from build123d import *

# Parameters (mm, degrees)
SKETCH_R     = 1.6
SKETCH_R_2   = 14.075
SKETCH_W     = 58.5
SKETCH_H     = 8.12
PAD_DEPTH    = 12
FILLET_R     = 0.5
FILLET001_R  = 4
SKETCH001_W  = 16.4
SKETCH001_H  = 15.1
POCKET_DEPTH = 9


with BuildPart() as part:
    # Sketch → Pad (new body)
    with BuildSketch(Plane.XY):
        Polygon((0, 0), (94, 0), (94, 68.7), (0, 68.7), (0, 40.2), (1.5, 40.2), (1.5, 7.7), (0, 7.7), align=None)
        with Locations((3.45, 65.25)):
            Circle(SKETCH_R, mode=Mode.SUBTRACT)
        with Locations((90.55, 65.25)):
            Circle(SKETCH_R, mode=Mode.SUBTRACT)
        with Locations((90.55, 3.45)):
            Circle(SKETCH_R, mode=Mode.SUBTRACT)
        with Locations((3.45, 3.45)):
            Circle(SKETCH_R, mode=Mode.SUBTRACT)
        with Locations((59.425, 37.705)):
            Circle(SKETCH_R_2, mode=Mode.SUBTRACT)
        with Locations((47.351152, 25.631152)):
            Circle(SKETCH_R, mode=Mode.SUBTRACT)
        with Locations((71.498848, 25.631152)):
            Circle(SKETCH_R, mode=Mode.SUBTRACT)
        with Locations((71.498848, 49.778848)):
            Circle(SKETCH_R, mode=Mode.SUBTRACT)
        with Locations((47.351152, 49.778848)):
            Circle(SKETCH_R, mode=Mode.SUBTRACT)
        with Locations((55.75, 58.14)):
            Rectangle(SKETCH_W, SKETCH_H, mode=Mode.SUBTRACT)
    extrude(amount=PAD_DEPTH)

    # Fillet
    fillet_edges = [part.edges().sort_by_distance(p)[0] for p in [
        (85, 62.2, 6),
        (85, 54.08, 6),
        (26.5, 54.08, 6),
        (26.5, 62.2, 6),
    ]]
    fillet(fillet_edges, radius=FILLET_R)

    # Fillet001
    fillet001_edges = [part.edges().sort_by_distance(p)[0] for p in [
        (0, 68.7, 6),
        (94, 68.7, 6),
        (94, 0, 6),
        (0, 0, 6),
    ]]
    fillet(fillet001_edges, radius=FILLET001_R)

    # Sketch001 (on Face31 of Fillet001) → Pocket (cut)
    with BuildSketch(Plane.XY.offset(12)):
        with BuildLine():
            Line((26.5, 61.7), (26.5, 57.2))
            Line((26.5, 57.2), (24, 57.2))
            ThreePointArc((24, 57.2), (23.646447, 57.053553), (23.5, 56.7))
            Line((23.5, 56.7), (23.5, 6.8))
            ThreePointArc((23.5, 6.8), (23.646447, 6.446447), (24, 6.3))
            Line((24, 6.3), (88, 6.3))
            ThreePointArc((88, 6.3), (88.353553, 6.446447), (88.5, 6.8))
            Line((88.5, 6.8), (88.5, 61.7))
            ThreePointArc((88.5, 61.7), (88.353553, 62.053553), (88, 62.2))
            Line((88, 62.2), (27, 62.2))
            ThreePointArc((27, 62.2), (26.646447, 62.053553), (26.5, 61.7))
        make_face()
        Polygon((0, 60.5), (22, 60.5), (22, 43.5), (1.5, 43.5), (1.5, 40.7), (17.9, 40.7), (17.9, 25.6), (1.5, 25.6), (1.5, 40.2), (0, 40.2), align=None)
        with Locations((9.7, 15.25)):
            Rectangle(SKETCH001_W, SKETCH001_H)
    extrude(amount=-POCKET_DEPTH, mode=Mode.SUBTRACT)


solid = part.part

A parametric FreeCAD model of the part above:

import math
import FreeCAD as App
import Part
import Sketcher

V = App.Vector


def edges_at(feature, points):
    """Names of the edges that pass closest to the given points."""
    edges = feature.Shape.Edges
    near = lambda p: min(range(len(edges)), key=lambda i: edges[i].distToShape(Part.Vertex(*p))[0])
    return sorted({f"Edge{near(p) + 1}" for p in points})

doc = App.newDocument("Part")
params = doc.addObject("Spreadsheet::Sheet", "Params")
for row, (alias, value) in enumerate([
    ("sketch1_diameter", "3.2 mm"),
    ("sketch1_diameter2", "28.15 mm"),
    ("sketch1_width", "94 mm"),
    ("sketch1_width2", "1.5 mm"),
    ("sketch1_width3", "58.5 mm"),
    ("pad1_length", "12 mm"),
    ("fillet_radius", "0.5 mm"),
    ("fillet2_radius", "4 mm"),
    ("sketch2_radius", "0.500001 mm"),
    ("sketch2_width", "64 mm"),
    ("sketch2_width2", "61 mm"),
    ("sketch2_width3", "22 mm"),
    ("sketch2_height", "17 mm"),
    ("pocket1_length", "9 mm"),
], start=1):
    params.set(f"A{row}", alias)
    params.set(f"B{row}", "=" + value)
    params.setAlias(f"B{row}", alias)

body = doc.addObject("PartDesign::Body", "Body")

sketch1 = body.newObject("Sketcher::SketchObject", "Sketch")
sketch1.AttachmentSupport = (doc.getObject("XY_Plane"), [""])
sketch1.MapMode = "FlatFace"
sketch1.addGeometry([
    Part.LineSegment(V(0, 0, 0), V(94, 0, 0)),
    Part.LineSegment(V(94, 0, 0), V(94, 68.7, 0)),
    Part.LineSegment(V(94, 68.7, 0), V(0, 68.7, 0)),
    Part.LineSegment(V(0, 68.7, 0), V(0, 40.2, 0)),
    Part.LineSegment(V(0, 40.2, 0), V(1.5, 40.2, 0)),
    Part.LineSegment(V(1.5, 40.2, 0), V(1.5, 7.7, 0)),
    Part.LineSegment(V(1.5, 7.7, 0), V(0, 7.7, 0)),
    Part.LineSegment(V(0, 7.7, 0), V(0, 0, 0)),
    Part.Circle(V(3.5, 3.5, 0), V(0, 0, 1), 1.6),
    Part.Circle(V(90.5, 3.5, 0), V(0, 0, 1), 1.6),
    Part.Circle(V(47.4, 25.6, 0), V(0, 0, 1), 1.6),
    Part.Circle(V(71.5, 25.6, 0), V(0, 0, 1), 1.6),
    Part.Circle(V(3.5, 65.2, 0), V(0, 0, 1), 1.6),
    Part.Circle(V(59.4, 37.7, 0), V(0, 0, 1), 14.1),
    Part.Circle(V(47.4, 49.8, 0), V(0, 0, 1), 1.6),
    Part.Circle(V(71.5, 49.8, 0), V(0, 0, 1), 1.6),
    Part.LineSegment(V(85, 54.1, 0), V(26.5, 54.1, 0)),
    Part.LineSegment(V(26.5, 54.1, 0), V(26.5, 62.2, 0)),
    Part.LineSegment(V(26.5, 62.2, 0), V(85, 62.2, 0)),
    Part.LineSegment(V(85, 62.2, 0), V(85, 54.1, 0)),
    Part.Circle(V(90.5, 65.2, 0), V(0, 0, 1), 1.6),
], False)
sketch1.addConstraint([
    Sketcher.Constraint("Coincident", 0, 2, 1, 1),
    Sketcher.Constraint("Coincident", 1, 2, 2, 1),
    Sketcher.Constraint("Coincident", 2, 2, 3, 1),
    Sketcher.Constraint("Coincident", 3, 2, 4, 1),
    Sketcher.Constraint("Coincident", 4, 2, 5, 1),
    Sketcher.Constraint("Coincident", 5, 2, 6, 1),
    Sketcher.Constraint("Coincident", 6, 2, 7, 1),
    Sketcher.Constraint("Coincident", 7, 2, 0, 1),
    Sketcher.Constraint("Coincident", 16, 2, 17, 1),
    Sketcher.Constraint("Coincident", 17, 2, 18, 1),
    Sketcher.Constraint("Coincident", 18, 2, 19, 1),
    Sketcher.Constraint("Coincident", 19, 2, 16, 1),
    Sketcher.Constraint("Horizontal", 0),
    Sketcher.Constraint("Vertical", 1),
    Sketcher.Constraint("Horizontal", 2),
    Sketcher.Constraint("Vertical", 3),
    Sketcher.Constraint("Horizontal", 4),
    Sketcher.Constraint("Vertical", 5),
    Sketcher.Constraint("Horizontal", 6),
    Sketcher.Constraint("Vertical", 7),
    Sketcher.Constraint("Horizontal", 16),
    Sketcher.Constraint("Vertical", 17),
    Sketcher.Constraint("Horizontal", 18),
    Sketcher.Constraint("Vertical", 19),
    Sketcher.Constraint("Coincident", 7, 2, -1, 1),
    Sketcher.Constraint("Equal", 8, 9),
    Sketcher.Constraint("Equal", 9, 10),
    Sketcher.Constraint("Equal", 10, 11),
    Sketcher.Constraint("Equal", 11, 12),
    Sketcher.Constraint("Equal", 12, 14),
    Sketcher.Constraint("Equal", 14, 15),
    Sketcher.Constraint("Equal", 15, 20),
    Sketcher.Constraint("PointOnObject", 2, 2, -2),
    Sketcher.Constraint("Horizontal", 8, 3, 9, 3),
    Sketcher.Constraint("Horizontal", 10, 3, 11, 3),
    Sketcher.Constraint("Horizontal", 14, 3, 15, 3),
    Sketcher.Constraint("Horizontal", 12, 3, 20, 3),
    Sketcher.Constraint("Vertical", 8, 3, 12, 3),
    Sketcher.Constraint("Vertical", 10, 3, 14, 3),
    Sketcher.Constraint("Vertical", 11, 3, 15, 3),
    Sketcher.Constraint("Vertical", 9, 3, 20, 3),
    Sketcher.Constraint("Diameter", 8, 3.2),
    Sketcher.Constraint("Diameter", 13, 28.15),
    Sketcher.Constraint("DistanceX", 0, 1, 0, 2, 94.0),
    Sketcher.Constraint("DistanceX", 4, 1, 4, 2, 1.5),
    Sketcher.Constraint("DistanceX", 16, 2, 16, 1, 58.5),
    Sketcher.Constraint("DistanceY", 1, 1, 1, 2, 68.7),
    Sketcher.Constraint("DistanceY", 3, 2, 3, 1, 28.5),
    Sketcher.Constraint("DistanceY", 5, 2, 5, 1, 32.5),
    Sketcher.Constraint("DistanceX", -1, 1, 18, 2, 85.0),
    Sketcher.Constraint("DistanceY", 4, 2, 17, 2, 22.0),
    Sketcher.Constraint("DistanceY", 17, 1, 17, 2, 8.12),
    Sketcher.Constraint("DistanceX", 8, 3, 9, 3, 87.1),
    Sketcher.Constraint("DistanceY", 8, 3, 12, 3, 61.8),
    Sketcher.Constraint("DistanceX", -1, 1, 8, 3, 3.45),
    Sketcher.Constraint("DistanceY", -1, 1, 8, 3, 3.45),
    Sketcher.Constraint("DistanceX", -1, 1, 13, 3, 59.425),
    Sketcher.Constraint("DistanceY", -1, 1, 13, 3, 37.705),
    Sketcher.Constraint("DistanceY", -1, 1, 10, 3, 25.631152),
    Sketcher.Constraint("DistanceY", -1, 1, 14, 3, 49.778848),
    Sketcher.Constraint("DistanceX", 8, 3, 10, 3, 43.901152),
    Sketcher.Constraint("DistanceX", -1, 1, 11, 3, 71.498848),
])
sketch1.setExpression("Constraints[41]", "Params.sketch1_diameter")
sketch1.setExpression("Constraints[42]", "Params.sketch1_diameter2")
sketch1.setExpression("Constraints[43]", "Params.sketch1_width")
sketch1.setExpression("Constraints[44]", "Params.sketch1_width2")
sketch1.setExpression("Constraints[45]", "Params.sketch1_width3")
pad1 = body.newObject("PartDesign::Pad", "Pad")
pad1.Profile = sketch1
pad1.setExpression("Length", "Params.pad1_length")
doc.recompute()

fillet = body.newObject("PartDesign::Fillet", "Fillet")
fillet.Base = (pad1, edges_at(pad1, [
    (85, 62.2, 6),
    (85, 54.08, 6),
    (26.5, 54.08, 6),
    (26.5, 62.2, 6),
]))
fillet.setExpression("Radius", "Params.fillet_radius")
doc.recompute()

fillet2 = body.newObject("PartDesign::Fillet", "Fillet001")
fillet2.Base = (fillet, edges_at(fillet, [
    (0, 68.7, 6),
    (94, 68.7, 6),
    (94, 0, 6),
    (0, 0, 6),
]))
fillet2.setExpression("Radius", "Params.fillet2_radius")

sketch2 = body.newObject("Sketcher::SketchObject", "Sketch001")
sketch2.AttachmentSupport = (doc.getObject("XY_Plane"), [""])
sketch2.MapMode = "FlatFace"
sketch2.AttachmentOffset = App.Placement(V(0, 0, 12), App.Rotation())
sketch2.addGeometry([
    Part.LineSegment(V(26.5, 61.7, 0), V(26.5, 57.2, 0)),
    Part.LineSegment(V(26.5, 57.2, 0), V(24, 57.2, 0)),
    Part.ArcOfCircle(Part.Circle(V(24, 56.7, 0), V(0, 0, 1), 0.5), math.radians(90), math.radians(180)),
    Part.LineSegment(V(23.5, 56.7, 0), V(23.5, 6.8, 0)),
    Part.ArcOfCircle(Part.Circle(V(24, 6.8, 0), V(0, 0, 1), 0.5), math.radians(-180), math.radians(-90)),
    Part.LineSegment(V(24, 6.3, 0), V(88, 6.3, 0)),
    Part.ArcOfCircle(Part.Circle(V(88, 6.8, 0), V(0, 0, 1), 0.5), math.radians(-90), math.radians(0)),
    Part.LineSegment(V(88.5, 6.8, 0), V(88.5, 61.7, 0)),
    Part.ArcOfCircle(Part.Circle(V(88, 61.7, 0), V(0, 0, 1), 0.5), math.radians(0), math.radians(90)),
    Part.LineSegment(V(88, 62.2, 0), V(27, 62.2, 0)),
    Part.ArcOfCircle(Part.Circle(V(27, 61.7, 0), V(0, 0, 1), 0.5), math.radians(90), math.radians(180)),
    Part.LineSegment(V(22, 60.5, 0), V(0, 60.5, 0)),
    Part.LineSegment(V(0, 60.5, 0), V(0, 40.2, 0)),
    Part.LineSegment(V(0, 40.2, 0), V(1.5, 40.2, 0)),
    Part.LineSegment(V(1.5, 40.2, 0), V(1.5, 25.6, 0)),
    Part.LineSegment(V(1.5, 25.6, 0), V(17.9, 25.6, 0)),
    Part.LineSegment(V(17.9, 25.6, 0), V(17.9, 40.7, 0)),
    Part.LineSegment(V(17.9, 40.7, 0), V(1.5, 40.7, 0)),
    Part.LineSegment(V(1.5, 40.7, 0), V(1.5, 43.5, 0)),
    Part.LineSegment(V(1.5, 43.5, 0), V(22, 43.5, 0)),
    Part.LineSegment(V(22, 43.5, 0), V(22, 60.5, 0)),
    Part.LineSegment(V(1.5, 22.8, 0), V(1.5, 7.7, 0)),
    Part.LineSegment(V(1.5, 7.7, 0), V(17.9, 7.7, 0)),
    Part.LineSegment(V(17.9, 7.7, 0), V(17.9, 22.8, 0)),
    Part.LineSegment(V(17.9, 22.8, 0), V(1.5, 22.8, 0)),
], False)
sketch2.addConstraint([
    Sketcher.Constraint("Coincident", 0, 2, 1, 1),
    Sketcher.Constraint("Coincident", 1, 2, 2, 1),
    Sketcher.Constraint("Coincident", 2, 2, 3, 1),
    Sketcher.Constraint("Coincident", 3, 2, 4, 1),
    Sketcher.Constraint("Coincident", 4, 2, 5, 1),
    Sketcher.Constraint("Coincident", 5, 2, 6, 1),
    Sketcher.Constraint("Coincident", 6, 2, 7, 1),
    Sketcher.Constraint("Coincident", 7, 2, 8, 1),
    Sketcher.Constraint("Coincident", 8, 2, 9, 1),
    Sketcher.Constraint("Coincident", 9, 2, 10, 1),
    Sketcher.Constraint("Coincident", 10, 2, 0, 1),
    Sketcher.Constraint("Coincident", 11, 2, 12, 1),
    Sketcher.Constraint("Coincident", 12, 2, 13, 1),
    Sketcher.Constraint("Coincident", 13, 2, 14, 1),
    Sketcher.Constraint("Coincident", 14, 2, 15, 1),
    Sketcher.Constraint("Coincident", 15, 2, 16, 1),
    Sketcher.Constraint("Coincident", 16, 2, 17, 1),
    Sketcher.Constraint("Coincident", 17, 2, 18, 1),
    Sketcher.Constraint("Coincident", 18, 2, 19, 1),
    Sketcher.Constraint("Coincident", 19, 2, 20, 1),
    Sketcher.Constraint("Coincident", 20, 2, 11, 1),
    Sketcher.Constraint("Coincident", 21, 2, 22, 1),
    Sketcher.Constraint("Coincident", 22, 2, 23, 1),
    Sketcher.Constraint("Coincident", 23, 2, 24, 1),
    Sketcher.Constraint("Coincident", 24, 2, 21, 1),
    Sketcher.Constraint("Vertical", 0),
    Sketcher.Constraint("Horizontal", 1),
    Sketcher.Constraint("Vertical", 3),
    Sketcher.Constraint("Horizontal", 5),
    Sketcher.Constraint("Vertical", 7),
    Sketcher.Constraint("Horizontal", 9),
    Sketcher.Constraint("Horizontal", 11),
    Sketcher.Constraint("Vertical", 12),
    Sketcher.Constraint("Horizontal", 13),
    Sketcher.Constraint("Vertical", 14),
    Sketcher.Constraint("Horizontal", 15),
    Sketcher.Constraint("Vertical", 16),
    Sketcher.Constraint("Horizontal", 17),
    Sketcher.Constraint("Vertical", 18),
    Sketcher.Constraint("Horizontal", 19),
    Sketcher.Constraint("Vertical", 20),
    Sketcher.Constraint("Vertical", 21),
    Sketcher.Constraint("Horizontal", 22),
    Sketcher.Constraint("Vertical", 23),
    Sketcher.Constraint("Horizontal", 24),
    Sketcher.Constraint("Equal", 2, 4),
    Sketcher.Constraint("Equal", 4, 6),
    Sketcher.Constraint("Equal", 6, 8),
    Sketcher.Constraint("Equal", 8, 10),
    Sketcher.Constraint("PointOnObject", 11, 2, -2),
    Sketcher.Constraint("Horizontal", 6, 3, 3, 2),
    Sketcher.Constraint("Horizontal", 3, 2, 6, 2),
    Sketcher.Constraint("Horizontal", 10, 3, 7, 2),
    Sketcher.Constraint("Horizontal", 7, 2, 10, 2),
    Sketcher.Constraint("Vertical", 4, 3, 1, 2),
    Sketcher.Constraint("Vertical", 1, 2, 4, 2),
    Sketcher.Constraint("Vertical", 8, 3, 5, 2),
    Sketcher.Constraint("Vertical", 5, 2, 8, 2),
    Sketcher.Constraint("Vertical", 10, 3, 9, 2),
    Sketcher.Constraint("Vertical", 14, 2, 17, 2),
    Sketcher.Constraint("Vertical", 18, 2, 21, 2),
    Sketcher.Constraint("Vertical", 16, 2, 22, 2),
    Sketcher.Constraint("Equal", 16, 21),
    Sketcher.Constraint("Radius", 2, 0.500001),
    Sketcher.Constraint("DistanceX", 5, 1, 5, 2, 64.0),
    Sketcher.Constraint("DistanceX", 9, 2, 9, 1, 61.0),
    Sketcher.Constraint("DistanceX", 11, 2, 11, 1, 22.0),
    Sketcher.Constraint("DistanceY", 20, 1, 20, 2, 17.0),
    Sketcher.Constraint("DistanceX", 13, 1, 13, 2, 1.5),
    Sketcher.Constraint("DistanceX", 15, 1, 15, 2, 16.4),
    Sketcher.Constraint("DistanceY", 0, 2, 0, 1, 4.5),
    Sketcher.Constraint("DistanceY", 3, 2, 3, 1, 49.9),
    Sketcher.Constraint("DistanceY", 7, 1, 7, 2, 54.9),
    Sketcher.Constraint("DistanceY", 12, 2, 12, 1, 20.3),
    Sketcher.Constraint("DistanceY", 14, 2, 14, 1, 14.6),
    Sketcher.Constraint("DistanceY", 16, 1, 16, 2, 15.1),
    Sketcher.Constraint("DistanceX", -1, 1, 2, 3, 24.000001),
    Sketcher.Constraint("DistanceY", 12, 2, 1, 2, 17.0),
    Sketcher.Constraint("DistanceY", 3, 2, 23, 2, 16.0),
    Sketcher.Constraint("DistanceY", -1, 1, 2, 3, 56.699999),
])
sketch2.setExpression("Constraints[63]", "Params.sketch2_radius")
sketch2.setExpression("Constraints[64]", "Params.sketch2_width")
sketch2.setExpression("Constraints[65]", "Params.sketch2_width2")
sketch2.setExpression("Constraints[66]", "Params.sketch2_width3")
sketch2.setExpression("Constraints[67]", "Params.sketch2_height")
pocket1 = body.newObject("PartDesign::Pocket", "Pocket")
pocket1.Profile = sketch2
pocket1.setExpression("Length", "Params.pocket1_length")

doc.recompute()
